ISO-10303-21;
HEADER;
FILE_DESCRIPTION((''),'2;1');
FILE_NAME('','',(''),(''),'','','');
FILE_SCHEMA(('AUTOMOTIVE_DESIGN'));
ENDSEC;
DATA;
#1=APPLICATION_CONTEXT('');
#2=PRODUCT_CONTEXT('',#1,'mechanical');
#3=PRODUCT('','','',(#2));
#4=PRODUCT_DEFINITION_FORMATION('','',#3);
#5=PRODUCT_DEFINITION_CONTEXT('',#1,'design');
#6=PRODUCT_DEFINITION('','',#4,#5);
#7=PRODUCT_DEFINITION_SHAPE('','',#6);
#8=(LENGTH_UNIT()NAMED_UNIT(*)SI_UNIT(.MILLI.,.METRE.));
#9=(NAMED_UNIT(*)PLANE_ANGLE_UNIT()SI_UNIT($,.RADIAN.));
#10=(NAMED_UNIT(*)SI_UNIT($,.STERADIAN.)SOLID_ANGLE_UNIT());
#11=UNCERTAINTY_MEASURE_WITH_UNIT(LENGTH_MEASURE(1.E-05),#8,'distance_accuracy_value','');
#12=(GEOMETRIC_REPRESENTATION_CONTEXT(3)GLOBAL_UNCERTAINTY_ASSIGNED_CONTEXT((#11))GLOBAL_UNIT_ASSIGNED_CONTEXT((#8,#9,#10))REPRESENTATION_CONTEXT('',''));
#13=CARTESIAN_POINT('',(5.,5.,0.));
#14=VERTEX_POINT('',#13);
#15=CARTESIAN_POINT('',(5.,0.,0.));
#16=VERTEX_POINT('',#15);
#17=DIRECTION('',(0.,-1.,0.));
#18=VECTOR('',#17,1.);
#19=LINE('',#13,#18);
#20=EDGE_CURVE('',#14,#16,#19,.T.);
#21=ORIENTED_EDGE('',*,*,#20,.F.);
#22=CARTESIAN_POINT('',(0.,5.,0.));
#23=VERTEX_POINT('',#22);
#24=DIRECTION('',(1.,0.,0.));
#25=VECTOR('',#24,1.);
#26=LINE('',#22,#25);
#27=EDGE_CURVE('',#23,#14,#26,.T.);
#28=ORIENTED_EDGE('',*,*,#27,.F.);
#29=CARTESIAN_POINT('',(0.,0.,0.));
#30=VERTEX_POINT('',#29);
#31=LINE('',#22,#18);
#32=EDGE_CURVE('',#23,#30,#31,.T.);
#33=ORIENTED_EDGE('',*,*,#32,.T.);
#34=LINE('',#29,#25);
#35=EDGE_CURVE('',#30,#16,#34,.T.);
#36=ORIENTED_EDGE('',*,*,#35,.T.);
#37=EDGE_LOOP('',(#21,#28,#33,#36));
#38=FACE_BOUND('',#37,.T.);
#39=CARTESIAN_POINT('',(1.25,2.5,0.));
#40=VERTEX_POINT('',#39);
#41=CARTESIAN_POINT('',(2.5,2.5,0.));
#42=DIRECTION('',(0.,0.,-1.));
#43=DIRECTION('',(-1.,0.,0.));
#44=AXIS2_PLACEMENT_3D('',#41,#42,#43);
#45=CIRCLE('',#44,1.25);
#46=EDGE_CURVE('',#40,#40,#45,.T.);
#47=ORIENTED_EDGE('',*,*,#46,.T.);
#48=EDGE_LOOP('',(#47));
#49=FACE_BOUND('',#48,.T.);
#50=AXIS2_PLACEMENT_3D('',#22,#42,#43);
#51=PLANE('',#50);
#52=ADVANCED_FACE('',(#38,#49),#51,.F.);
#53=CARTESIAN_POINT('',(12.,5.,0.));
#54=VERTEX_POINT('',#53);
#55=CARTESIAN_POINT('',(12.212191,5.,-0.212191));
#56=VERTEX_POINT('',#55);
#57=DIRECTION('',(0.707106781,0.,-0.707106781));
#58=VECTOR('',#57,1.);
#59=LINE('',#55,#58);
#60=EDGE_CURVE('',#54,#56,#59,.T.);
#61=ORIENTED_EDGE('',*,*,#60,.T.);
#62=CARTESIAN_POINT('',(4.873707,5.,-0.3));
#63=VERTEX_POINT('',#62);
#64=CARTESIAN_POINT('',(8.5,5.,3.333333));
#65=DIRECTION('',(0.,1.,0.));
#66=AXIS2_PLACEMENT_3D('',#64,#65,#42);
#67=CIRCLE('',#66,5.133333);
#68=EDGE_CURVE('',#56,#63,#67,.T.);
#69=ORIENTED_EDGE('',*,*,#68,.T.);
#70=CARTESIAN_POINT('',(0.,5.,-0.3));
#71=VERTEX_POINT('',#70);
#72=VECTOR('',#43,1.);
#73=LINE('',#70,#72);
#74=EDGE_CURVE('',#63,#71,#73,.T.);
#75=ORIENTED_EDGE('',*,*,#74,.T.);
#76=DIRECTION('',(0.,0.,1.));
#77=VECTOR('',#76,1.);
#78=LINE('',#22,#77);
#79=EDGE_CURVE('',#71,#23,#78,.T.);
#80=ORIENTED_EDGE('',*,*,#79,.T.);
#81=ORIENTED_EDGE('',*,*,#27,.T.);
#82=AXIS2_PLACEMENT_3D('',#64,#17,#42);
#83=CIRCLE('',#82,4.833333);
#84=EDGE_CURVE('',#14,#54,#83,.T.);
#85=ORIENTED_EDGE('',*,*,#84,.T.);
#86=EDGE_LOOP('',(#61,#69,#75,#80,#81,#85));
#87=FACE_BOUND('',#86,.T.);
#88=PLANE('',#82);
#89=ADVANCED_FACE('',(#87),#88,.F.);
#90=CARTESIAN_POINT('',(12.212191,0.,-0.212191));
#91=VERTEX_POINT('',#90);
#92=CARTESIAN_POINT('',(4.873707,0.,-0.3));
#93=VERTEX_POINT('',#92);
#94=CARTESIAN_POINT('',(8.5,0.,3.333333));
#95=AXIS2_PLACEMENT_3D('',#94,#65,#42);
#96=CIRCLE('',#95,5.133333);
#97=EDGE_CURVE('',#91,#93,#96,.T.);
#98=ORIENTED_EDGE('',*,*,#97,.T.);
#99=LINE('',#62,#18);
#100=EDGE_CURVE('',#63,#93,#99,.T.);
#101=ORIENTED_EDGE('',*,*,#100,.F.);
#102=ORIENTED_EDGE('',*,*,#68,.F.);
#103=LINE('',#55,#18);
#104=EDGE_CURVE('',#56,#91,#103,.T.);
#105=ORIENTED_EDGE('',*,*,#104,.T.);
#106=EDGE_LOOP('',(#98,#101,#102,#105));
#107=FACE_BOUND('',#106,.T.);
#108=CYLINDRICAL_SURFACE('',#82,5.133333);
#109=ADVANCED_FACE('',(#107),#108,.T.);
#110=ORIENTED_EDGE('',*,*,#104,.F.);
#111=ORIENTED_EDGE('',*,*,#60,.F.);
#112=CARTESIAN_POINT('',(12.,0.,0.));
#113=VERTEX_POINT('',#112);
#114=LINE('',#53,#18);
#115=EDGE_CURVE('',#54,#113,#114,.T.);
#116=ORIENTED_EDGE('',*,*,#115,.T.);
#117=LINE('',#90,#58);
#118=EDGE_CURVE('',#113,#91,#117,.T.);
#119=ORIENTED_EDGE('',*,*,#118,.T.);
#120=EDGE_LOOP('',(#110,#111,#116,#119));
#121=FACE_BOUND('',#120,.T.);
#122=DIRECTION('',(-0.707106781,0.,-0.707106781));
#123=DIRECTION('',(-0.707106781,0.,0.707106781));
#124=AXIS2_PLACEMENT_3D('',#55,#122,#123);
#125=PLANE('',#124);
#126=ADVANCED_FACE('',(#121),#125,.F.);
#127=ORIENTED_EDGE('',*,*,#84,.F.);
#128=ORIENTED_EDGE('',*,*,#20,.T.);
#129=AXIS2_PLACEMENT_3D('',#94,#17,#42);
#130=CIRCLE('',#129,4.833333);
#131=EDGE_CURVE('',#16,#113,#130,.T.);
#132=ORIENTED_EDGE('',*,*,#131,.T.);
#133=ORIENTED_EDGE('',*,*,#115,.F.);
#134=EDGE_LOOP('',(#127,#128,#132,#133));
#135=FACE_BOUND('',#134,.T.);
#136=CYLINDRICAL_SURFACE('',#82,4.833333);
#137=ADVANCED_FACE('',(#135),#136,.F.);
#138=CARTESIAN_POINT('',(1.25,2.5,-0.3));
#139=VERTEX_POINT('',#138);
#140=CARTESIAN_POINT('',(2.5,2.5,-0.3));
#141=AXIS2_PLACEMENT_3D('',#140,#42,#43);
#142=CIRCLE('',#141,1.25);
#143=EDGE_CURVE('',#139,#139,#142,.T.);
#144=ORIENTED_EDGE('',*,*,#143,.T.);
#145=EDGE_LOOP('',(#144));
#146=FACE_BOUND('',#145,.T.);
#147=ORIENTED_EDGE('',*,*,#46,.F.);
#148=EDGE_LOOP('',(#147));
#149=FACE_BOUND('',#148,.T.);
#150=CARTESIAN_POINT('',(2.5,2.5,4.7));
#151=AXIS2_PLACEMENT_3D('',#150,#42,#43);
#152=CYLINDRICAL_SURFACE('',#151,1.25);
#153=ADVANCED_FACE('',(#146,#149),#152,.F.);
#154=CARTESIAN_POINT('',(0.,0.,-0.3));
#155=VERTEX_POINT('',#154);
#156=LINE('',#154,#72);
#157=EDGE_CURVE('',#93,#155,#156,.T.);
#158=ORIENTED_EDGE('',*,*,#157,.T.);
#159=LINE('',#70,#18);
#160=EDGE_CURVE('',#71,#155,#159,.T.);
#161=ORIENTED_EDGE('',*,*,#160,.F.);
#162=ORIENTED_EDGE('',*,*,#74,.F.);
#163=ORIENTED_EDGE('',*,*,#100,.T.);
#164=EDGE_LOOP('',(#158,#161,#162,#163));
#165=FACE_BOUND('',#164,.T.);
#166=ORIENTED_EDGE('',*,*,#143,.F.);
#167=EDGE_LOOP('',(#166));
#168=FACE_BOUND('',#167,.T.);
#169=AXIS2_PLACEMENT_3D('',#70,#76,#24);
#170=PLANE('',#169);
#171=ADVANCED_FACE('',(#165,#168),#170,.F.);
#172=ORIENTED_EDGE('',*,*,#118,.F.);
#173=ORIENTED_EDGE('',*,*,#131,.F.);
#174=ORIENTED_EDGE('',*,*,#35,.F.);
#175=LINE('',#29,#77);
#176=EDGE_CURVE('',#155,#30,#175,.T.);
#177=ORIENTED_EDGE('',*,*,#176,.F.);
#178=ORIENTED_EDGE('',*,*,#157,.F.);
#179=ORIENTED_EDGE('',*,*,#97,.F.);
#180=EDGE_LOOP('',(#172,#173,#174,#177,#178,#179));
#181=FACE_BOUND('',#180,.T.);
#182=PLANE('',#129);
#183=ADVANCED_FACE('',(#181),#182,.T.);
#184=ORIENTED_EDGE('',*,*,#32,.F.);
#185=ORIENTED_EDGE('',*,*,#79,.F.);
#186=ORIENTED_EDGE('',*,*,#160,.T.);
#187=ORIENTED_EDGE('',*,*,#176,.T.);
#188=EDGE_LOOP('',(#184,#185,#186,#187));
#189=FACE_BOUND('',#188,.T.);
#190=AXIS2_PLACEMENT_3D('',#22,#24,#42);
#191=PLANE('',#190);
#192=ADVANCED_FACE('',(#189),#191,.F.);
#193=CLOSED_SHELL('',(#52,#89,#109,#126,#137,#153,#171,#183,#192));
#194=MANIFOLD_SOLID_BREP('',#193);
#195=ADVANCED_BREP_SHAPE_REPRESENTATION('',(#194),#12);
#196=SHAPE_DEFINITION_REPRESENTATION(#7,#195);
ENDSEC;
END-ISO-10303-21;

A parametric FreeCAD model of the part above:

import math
import FreeCAD as App
import Part
import Sketcher
Q = App.Units.Quantity

doc = App.newDocument("Part")
body = doc.addObject("PartDesign::Body", "Body")

sketch1 = doc.addObject("Sketcher::SketchObject", "Sketch")
body.addObject(sketch1)
sketch1.AttachmentSupport = (doc.XZ_Plane, [""])
sketch1.MapMode = "FlatFace"
sketch1.addGeometry([
    Part.LineSegment(App.Vector(0, 0, 0), App.Vector(5, 0, 0)),
    Part.ArcOfCircle(Part.Circle(App.Vector(8.5, 3.33, 0), App.Vector(0, 0, 1), 4.83), math.radians(-136), math.radians(-44)),
    Part.LineSegment(App.Vector(12, 0, 0), App.Vector(12.21, -0.21, 0)),
    Part.ArcOfCircle(Part.Circle(App.Vector(8.5, 3.33, 0), App.Vector(0, 0, 1), 5.13), math.radians(-135), math.radians(-44)),
    Part.LineSegment(App.Vector(4.87, -0.3, 0), App.Vector(0, -0.3, 0)),
    Part.LineSegment(App.Vector(0, -0.3, 0), App.Vector(0, 0, 0)),
], False)
sketch1.addConstraint([
    Sketcher.Constraint("Coincident", 0, 2, 1, 1),
    Sketcher.Constraint("Coincident", 1, 2, 2, 1),
    Sketcher.Constraint("Coincident", 2, 2, 3, 2),
    Sketcher.Constraint("Coincident", 3, 1, 4, 1),
    Sketcher.Constraint("Coincident", 4, 2, 5, 1),
    Sketcher.Constraint("Coincident", 5, 2, 0, 1),
    Sketcher.Constraint("Horizontal", 0),
    Sketcher.Constraint("Horizontal", 4),
    Sketcher.Constraint("Vertical", 5),
    Sketcher.Constraint("Coincident", 5, 2, -1, 1),
    Sketcher.Constraint("Coincident", 3, 3, 1, 3),
    Sketcher.Constraint("PointOnObject", 1, 2, -1),
    Sketcher.Constraint("DistanceX", 0, 1, 0, 2, Q("5 mm")),
    Sketcher.Constraint("Angle", 2, Q("-45 deg")),
    Sketcher.Constraint("DistanceY", 5, 1, 5, 2, Q("0.3 mm")),
    Sketcher.Constraint("DistanceX", -1, 1, 1, 2, Q("12 mm")),
    Sketcher.Constraint("Radius", 1, Q("4.833333 mm")),
    Sketcher.Constraint("Radius", 3, Q("5.133333 mm")),
])
pad1 = doc.addObject("PartDesign::Pad", "Pad")
body.addObject(pad1)
pad1.Profile = sketch1
pad1.Length = 5
pad1.Reversed = True

sketch2 = doc.addObject("Sketcher::SketchObject", "Sketch001")
body.addObject(sketch2)
sketch2.AttachmentSupport = (doc.XY_Plane, [""])
sketch2.MapMode = "FlatFace"
sketch2.AttachmentOffset = App.Placement(App.Vector(0, 0, -0.3), App.Rotation())
sketch2.addGeometry(Part.Circle(App.Vector(2.5, 2.5, 0), App.Vector(0, 0, 1), 1.2), False)
sketch2.addConstraint([
    Sketcher.Constraint("Diameter", 0, Q("2.5 mm")),
    Sketcher.Constraint("DistanceX", -1, 1, 0, 3, Q("2.5 mm")),
    Sketcher.Constraint("DistanceY", -1, 1, 0, 3, Q("2.5 mm")),
])
pocket1 = doc.addObject("PartDesign::Pocket", "Pocket")
body.addObject(pocket1)
pocket1.Profile = sketch2
pocket1.Length = 5
pocket1.Reversed = True

doc.recompute()
